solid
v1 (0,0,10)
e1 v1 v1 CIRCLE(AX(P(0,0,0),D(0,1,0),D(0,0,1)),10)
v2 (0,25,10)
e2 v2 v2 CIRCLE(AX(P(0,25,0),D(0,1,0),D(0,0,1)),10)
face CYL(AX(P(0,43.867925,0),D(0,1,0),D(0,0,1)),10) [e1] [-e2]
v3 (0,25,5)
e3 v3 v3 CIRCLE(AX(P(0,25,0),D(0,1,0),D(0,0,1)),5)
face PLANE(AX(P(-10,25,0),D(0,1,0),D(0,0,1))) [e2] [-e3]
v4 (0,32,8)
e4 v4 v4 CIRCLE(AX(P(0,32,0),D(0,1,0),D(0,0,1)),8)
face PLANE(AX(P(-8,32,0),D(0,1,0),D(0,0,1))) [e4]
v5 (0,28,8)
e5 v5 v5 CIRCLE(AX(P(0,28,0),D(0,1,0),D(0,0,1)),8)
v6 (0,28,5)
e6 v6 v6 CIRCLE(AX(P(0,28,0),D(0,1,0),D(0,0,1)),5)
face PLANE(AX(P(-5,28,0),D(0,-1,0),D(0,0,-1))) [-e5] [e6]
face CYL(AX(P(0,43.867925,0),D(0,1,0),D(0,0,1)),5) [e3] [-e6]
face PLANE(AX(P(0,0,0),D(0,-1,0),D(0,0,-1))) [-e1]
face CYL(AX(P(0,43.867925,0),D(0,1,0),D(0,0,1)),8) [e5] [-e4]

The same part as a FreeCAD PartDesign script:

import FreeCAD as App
import Part
import Sketcher

V = App.Vector


def add_polygon(sketch, points):
    """Adds a closed chain of lines whose ends are joined by coincident constraints."""
    first, n = sketch.GeometryCount, len(points)
    for a, b in zip(points, points[1:] + points[:1]):
        sketch.addGeometry(Part.LineSegment(App.Vector(*a, 0), App.Vector(*b, 0)), False)
    for i in range(n):
        sketch.addConstraint(Sketcher.Constraint("Coincident", first + i, 2, first + (i + 1) % n, 1))

doc = App.newDocument("Part")
body = doc.addObject("PartDesign::Body", "Body")

sketch1 = doc.addObject("Sketcher::SketchObject", "Sketch")
body.addObject(sketch1)
sketch1.AttachmentSupport = (doc.XY_Plane, [""])
sketch1.MapMode = "FlatFace"
add_polygon(sketch1, [(-10, 0), (0, 0), (0, 32), (-8, 32), (-8, 28), (-5, 28), (-5, 25), (-10, 25)])
sketch1.addConstraint(Sketcher.Constraint("Horizontal", 0))
sketch1.addConstraint(Sketcher.Constraint("Vertical", 1))
sketch1.addConstraint(Sketcher.Constraint("Horizontal", 2))
sketch1.addConstraint(Sketcher.Constraint("Vertical", 3))
sketch1.addConstraint(Sketcher.Constraint("Horizontal", 4))
sketch1.addConstraint(Sketcher.Constraint("Vertical", 5))
sketch1.addConstraint(Sketcher.Constraint("Horizontal", 6))
sketch1.addConstraint(Sketcher.Constraint("Vertical", 7))
sketch1.addConstraint(Sketcher.Constraint("Coincident", 0, 2, -1, 1))
sketch1.addConstraint(Sketcher.Constraint("Equal", 4, 5))
sketch1.addConstraint(Sketcher.Constraint("DistanceX", 0, 1, 0, 2, 10.0))
sketch1.addConstraint(Sketcher.Constraint("DistanceX", 2, 2, 2, 1, 8.0))
sketch1.addConstraint(Sketcher.Constraint("DistanceX", 4, 1, 4, 2, 3.0))
sketch1.addConstraint(Sketcher.Constraint("DistanceY", 1, 1, 1, 2, 32.0))
sketch1.addConstraint(Sketcher.Constraint("DistanceY", 3, 2, 3, 1, 4.0))
revolution = doc.addObject("PartDesign::Revolution", "Revolution")
body.addObject(revolution)
revolution.Profile = sketch1
revolution.ReferenceAxis = (sketch1, ["V_Axis"])
revolution.Angle = 360

doc.recompute()
